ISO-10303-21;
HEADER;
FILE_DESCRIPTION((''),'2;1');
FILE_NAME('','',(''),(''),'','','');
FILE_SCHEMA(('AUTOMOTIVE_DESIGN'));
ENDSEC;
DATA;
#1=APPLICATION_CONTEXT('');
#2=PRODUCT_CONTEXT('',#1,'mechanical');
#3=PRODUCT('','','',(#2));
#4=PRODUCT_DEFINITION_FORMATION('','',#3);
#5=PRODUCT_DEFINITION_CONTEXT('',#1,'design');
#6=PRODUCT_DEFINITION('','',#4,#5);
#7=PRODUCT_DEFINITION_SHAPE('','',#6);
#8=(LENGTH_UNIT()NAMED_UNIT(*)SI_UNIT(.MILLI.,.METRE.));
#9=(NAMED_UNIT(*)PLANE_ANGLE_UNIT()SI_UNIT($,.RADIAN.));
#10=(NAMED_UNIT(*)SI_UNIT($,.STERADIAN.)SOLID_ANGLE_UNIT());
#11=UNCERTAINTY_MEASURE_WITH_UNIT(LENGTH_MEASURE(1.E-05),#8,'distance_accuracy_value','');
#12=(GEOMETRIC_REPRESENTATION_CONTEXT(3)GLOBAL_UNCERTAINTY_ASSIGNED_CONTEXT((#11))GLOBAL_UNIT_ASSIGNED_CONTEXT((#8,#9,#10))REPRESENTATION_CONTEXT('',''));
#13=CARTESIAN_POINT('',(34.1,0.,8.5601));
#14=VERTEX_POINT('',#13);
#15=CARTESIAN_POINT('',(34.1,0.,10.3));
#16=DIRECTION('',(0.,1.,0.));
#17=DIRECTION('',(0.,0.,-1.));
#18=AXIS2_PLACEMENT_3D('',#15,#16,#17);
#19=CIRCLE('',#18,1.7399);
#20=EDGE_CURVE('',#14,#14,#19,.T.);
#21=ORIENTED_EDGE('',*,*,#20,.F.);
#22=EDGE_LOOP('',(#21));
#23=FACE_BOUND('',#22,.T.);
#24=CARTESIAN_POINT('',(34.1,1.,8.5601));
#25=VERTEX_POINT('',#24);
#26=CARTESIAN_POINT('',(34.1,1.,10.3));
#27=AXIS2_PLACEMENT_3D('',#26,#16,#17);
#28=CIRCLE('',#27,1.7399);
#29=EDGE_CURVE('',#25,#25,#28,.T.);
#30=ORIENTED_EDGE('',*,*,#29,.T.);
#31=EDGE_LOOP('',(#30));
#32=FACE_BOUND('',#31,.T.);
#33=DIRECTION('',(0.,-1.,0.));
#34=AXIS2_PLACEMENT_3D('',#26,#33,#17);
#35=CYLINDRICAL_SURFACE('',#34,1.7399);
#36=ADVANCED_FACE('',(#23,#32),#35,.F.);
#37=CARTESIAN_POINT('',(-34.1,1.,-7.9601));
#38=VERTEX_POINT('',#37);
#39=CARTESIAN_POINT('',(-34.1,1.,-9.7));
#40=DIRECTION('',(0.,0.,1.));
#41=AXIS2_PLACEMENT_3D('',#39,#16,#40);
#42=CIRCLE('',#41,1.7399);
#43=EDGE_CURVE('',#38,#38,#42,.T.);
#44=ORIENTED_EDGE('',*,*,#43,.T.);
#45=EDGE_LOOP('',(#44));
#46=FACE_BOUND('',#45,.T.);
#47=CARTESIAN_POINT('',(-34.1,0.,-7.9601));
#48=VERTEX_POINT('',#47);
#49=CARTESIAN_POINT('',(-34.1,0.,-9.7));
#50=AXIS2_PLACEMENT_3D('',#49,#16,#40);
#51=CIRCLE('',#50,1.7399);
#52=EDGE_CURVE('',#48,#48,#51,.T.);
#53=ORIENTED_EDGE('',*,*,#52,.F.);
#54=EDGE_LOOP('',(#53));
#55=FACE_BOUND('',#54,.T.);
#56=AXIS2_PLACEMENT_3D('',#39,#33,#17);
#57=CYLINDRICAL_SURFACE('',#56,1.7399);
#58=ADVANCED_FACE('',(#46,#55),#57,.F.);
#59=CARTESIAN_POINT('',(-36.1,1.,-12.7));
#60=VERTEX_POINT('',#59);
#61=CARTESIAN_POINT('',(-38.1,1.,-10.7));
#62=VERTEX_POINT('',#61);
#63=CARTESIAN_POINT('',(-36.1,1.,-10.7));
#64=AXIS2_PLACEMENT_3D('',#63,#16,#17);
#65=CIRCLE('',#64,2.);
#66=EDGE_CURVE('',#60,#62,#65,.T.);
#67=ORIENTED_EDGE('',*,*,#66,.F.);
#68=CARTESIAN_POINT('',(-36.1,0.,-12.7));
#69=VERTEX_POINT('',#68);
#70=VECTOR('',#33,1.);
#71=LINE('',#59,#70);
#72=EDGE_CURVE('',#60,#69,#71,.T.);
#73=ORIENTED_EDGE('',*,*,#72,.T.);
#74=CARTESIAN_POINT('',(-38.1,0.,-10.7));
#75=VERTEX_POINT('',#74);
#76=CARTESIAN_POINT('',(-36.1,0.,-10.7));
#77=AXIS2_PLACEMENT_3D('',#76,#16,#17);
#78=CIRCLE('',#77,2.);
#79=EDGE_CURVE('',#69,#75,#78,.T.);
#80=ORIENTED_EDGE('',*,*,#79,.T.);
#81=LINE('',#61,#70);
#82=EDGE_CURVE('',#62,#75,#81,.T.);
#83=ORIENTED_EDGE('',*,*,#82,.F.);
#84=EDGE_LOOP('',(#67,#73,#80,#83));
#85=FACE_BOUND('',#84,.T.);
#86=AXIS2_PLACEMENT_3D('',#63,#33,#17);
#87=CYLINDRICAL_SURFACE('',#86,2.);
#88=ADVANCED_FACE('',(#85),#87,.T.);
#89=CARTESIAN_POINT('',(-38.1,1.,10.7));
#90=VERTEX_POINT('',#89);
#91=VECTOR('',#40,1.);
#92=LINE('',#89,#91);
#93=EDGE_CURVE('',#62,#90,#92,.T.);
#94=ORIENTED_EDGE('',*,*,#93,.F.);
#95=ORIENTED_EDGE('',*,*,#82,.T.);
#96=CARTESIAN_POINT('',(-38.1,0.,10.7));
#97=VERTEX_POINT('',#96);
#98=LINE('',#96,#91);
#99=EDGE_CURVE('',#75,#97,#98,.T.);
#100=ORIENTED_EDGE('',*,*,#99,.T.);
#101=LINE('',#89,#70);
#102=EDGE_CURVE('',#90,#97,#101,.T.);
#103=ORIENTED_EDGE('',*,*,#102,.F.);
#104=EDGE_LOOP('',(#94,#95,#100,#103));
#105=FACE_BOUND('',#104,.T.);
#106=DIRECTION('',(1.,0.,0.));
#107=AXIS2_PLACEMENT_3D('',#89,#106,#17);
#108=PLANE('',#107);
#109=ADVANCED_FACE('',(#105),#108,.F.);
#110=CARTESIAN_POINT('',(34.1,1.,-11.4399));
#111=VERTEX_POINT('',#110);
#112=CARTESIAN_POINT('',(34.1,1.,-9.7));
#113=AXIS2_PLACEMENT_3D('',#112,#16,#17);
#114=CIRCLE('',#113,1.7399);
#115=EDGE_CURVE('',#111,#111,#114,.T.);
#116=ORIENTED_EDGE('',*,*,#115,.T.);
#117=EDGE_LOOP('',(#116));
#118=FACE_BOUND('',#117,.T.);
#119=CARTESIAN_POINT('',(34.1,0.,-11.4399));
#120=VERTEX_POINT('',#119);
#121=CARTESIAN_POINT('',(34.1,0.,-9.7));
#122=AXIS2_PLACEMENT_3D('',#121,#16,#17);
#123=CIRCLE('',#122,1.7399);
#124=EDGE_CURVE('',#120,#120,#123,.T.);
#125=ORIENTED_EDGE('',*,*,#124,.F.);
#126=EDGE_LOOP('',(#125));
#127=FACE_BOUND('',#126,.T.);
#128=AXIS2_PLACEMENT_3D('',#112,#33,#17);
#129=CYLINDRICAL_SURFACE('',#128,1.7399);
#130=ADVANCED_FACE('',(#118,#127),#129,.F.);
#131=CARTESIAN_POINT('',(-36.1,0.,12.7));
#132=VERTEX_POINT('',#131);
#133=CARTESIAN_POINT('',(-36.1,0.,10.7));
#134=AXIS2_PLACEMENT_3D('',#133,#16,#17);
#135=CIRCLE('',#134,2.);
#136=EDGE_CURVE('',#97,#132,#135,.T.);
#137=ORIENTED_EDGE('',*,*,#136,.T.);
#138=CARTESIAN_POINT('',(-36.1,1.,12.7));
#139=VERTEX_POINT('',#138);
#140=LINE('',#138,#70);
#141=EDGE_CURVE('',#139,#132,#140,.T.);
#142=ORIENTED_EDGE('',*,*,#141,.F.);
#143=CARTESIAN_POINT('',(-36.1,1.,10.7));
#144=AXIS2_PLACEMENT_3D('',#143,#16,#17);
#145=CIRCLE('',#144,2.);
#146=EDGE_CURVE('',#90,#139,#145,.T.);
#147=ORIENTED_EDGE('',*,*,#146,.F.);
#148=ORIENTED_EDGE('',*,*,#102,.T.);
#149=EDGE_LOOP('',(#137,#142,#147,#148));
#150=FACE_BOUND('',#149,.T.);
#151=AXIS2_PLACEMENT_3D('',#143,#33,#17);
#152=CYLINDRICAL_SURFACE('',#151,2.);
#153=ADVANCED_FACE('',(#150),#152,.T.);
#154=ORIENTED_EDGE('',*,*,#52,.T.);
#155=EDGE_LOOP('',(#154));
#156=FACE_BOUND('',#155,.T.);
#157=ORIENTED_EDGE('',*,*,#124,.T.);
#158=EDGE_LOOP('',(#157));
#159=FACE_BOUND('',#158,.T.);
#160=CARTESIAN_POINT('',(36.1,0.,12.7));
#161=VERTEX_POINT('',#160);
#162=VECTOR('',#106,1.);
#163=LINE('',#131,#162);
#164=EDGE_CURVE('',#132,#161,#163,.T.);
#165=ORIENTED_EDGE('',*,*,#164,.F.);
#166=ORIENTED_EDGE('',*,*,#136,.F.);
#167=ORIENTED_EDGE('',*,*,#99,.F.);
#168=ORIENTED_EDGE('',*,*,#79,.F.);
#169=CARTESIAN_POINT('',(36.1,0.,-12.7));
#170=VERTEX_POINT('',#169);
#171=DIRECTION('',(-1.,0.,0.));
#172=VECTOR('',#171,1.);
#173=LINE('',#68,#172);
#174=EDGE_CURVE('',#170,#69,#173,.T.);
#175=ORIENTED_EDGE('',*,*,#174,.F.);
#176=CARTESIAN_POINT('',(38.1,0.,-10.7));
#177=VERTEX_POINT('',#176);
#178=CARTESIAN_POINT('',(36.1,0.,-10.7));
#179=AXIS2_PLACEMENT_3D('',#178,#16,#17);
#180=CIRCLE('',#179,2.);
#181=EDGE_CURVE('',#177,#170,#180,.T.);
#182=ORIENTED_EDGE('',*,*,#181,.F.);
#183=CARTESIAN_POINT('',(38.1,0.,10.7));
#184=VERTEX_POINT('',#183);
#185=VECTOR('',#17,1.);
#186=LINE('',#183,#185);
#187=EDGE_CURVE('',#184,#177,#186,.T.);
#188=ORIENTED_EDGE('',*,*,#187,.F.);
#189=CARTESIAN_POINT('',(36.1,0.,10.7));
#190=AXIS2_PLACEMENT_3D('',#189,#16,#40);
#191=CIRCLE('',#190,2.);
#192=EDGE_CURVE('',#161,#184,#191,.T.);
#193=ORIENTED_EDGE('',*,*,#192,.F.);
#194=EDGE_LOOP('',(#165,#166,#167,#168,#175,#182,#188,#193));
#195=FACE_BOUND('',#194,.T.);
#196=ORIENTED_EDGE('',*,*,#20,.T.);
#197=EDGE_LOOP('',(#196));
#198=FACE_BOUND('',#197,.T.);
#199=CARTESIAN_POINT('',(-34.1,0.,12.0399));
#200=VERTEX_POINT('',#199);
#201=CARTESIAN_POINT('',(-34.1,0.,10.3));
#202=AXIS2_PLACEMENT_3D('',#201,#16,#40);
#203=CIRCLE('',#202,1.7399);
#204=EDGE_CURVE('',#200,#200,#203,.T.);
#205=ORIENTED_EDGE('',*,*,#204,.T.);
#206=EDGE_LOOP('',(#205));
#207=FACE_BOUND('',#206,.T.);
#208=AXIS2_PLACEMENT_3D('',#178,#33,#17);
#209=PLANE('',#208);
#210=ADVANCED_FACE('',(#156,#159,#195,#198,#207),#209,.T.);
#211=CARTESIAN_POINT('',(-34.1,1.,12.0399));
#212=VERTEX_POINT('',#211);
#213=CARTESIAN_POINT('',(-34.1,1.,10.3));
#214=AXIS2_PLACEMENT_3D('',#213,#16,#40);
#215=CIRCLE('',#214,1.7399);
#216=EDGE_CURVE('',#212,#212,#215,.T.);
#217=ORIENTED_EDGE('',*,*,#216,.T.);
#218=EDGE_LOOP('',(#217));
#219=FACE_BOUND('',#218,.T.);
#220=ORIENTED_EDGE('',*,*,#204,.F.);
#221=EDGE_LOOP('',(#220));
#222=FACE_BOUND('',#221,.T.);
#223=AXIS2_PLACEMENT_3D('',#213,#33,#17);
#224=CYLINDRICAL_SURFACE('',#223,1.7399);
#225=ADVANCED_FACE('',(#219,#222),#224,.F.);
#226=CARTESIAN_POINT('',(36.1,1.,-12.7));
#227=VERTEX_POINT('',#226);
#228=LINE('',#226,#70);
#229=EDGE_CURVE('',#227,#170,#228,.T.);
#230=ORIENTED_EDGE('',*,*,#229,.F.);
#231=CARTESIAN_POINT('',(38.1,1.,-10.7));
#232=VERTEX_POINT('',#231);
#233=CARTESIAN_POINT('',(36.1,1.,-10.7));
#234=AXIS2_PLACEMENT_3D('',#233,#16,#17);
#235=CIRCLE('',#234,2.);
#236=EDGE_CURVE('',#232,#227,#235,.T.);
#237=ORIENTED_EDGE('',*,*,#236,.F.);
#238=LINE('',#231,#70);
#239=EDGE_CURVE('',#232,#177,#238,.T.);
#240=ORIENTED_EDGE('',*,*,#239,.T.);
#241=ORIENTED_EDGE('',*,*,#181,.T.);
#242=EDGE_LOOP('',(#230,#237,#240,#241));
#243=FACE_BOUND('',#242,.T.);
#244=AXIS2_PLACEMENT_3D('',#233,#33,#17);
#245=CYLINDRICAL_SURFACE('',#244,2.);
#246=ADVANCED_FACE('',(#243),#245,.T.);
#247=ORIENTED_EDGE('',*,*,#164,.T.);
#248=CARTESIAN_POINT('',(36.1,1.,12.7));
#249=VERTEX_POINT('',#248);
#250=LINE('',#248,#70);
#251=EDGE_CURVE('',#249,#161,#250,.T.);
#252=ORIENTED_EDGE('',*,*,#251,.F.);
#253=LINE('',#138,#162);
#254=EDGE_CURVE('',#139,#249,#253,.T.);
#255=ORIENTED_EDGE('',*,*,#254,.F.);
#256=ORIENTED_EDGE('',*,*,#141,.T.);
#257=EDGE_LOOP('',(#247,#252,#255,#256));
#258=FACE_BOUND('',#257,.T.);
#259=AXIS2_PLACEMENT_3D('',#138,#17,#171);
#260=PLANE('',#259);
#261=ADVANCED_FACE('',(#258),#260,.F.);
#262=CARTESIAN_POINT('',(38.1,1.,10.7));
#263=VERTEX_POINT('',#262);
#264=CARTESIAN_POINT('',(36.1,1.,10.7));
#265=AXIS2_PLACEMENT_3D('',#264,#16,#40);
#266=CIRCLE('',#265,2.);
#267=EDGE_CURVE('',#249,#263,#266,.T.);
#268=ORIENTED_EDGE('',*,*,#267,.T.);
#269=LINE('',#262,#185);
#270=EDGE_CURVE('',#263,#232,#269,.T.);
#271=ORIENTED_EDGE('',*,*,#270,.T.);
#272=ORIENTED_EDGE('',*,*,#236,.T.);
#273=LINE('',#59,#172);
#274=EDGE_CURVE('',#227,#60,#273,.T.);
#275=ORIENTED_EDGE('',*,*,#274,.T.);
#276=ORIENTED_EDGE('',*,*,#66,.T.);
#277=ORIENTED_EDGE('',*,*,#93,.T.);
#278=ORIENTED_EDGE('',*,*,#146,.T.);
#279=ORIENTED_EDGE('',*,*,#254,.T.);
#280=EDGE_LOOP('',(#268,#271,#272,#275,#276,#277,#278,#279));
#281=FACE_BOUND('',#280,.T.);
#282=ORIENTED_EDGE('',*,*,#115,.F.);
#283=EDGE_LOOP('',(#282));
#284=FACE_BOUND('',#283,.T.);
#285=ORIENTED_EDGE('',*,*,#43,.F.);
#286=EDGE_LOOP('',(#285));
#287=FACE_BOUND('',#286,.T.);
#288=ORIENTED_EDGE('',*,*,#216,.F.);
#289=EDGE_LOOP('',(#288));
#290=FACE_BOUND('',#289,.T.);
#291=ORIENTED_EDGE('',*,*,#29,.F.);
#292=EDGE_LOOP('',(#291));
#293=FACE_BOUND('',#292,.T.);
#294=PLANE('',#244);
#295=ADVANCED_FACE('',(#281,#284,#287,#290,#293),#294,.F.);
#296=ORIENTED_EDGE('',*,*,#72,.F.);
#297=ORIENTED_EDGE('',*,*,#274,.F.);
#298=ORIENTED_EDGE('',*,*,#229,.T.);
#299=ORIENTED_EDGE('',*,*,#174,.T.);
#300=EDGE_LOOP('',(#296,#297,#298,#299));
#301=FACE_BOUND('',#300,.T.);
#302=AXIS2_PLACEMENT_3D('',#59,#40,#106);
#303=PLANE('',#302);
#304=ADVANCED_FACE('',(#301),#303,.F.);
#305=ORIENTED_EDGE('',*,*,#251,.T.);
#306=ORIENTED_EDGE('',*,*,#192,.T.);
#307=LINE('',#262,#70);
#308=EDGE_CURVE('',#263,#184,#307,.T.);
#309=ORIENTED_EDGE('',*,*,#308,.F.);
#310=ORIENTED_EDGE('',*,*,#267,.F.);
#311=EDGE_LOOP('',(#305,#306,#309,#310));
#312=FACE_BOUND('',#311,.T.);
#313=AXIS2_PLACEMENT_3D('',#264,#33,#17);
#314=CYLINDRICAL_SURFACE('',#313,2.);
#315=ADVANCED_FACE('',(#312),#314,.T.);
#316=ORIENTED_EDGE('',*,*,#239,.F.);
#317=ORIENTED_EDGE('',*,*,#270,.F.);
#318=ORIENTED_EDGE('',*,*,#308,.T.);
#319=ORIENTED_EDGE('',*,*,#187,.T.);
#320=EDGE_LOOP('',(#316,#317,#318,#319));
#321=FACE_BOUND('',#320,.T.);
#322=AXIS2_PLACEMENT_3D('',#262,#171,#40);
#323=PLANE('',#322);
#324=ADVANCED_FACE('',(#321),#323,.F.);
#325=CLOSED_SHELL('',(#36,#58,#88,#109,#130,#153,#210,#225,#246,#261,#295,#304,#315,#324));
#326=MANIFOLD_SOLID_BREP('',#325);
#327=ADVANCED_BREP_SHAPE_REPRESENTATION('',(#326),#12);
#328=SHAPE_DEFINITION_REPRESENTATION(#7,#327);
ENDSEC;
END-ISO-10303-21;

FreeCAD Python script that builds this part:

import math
import FreeCAD as App
import Part
import Sketcher

doc = App.newDocument("Part")
body = doc.addObject("PartDesign::Body", "Body")

# Sketch on XZ plane
sketch1 = doc.addObject("Sketcher::SketchObject", "Sketch")
body.addObject(sketch1)
sketch1.AttachmentSupport = (doc.XZ_Plane, [""])
sketch1.MapMode = "FlatFace"
sketch1.addGeometry([
    Part.LineSegment(App.Vector(-36.1, 12.7, 0), App.Vector(36.1, 12.7, 0)),  # 0
    Part.ArcOfCircle(Part.Circle(App.Vector(36.1, 10.7, 0), App.Vector(0, 0, 1), 2), math.radians(0), math.radians(90)),  # 1
    Part.LineSegment(App.Vector(38.1, 10.7, 0), App.Vector(38.1, -10.7, 0)),  # 2
    Part.ArcOfCircle(Part.Circle(App.Vector(36.1, -10.7, 0), App.Vector(0, 0, 1), 2), math.radians(-90), math.radians(0)),  # 3
    Part.LineSegment(App.Vector(36.1, -12.7, 0), App.Vector(-36.1, -12.7, 0)),  # 4
    Part.ArcOfCircle(Part.Circle(App.Vector(-36.1, -10.7, 0), App.Vector(0, 0, 1), 2), math.radians(-180), math.radians(-90)),  # 5
    Part.LineSegment(App.Vector(-38.1, -10.7, 0), App.Vector(-38.1, 10.7, 0)),  # 6
    Part.ArcOfCircle(Part.Circle(App.Vector(-36.1, 10.7, 0), App.Vector(0, 0, 1), 2), math.radians(90), math.radians(180)),  # 7
    Part.Circle(App.Vector(-34.1, 10.3, 0), App.Vector(0, 0, 1), 1.7),  # 8
    Part.Circle(App.Vector(34.1, 10.3, 0), App.Vector(0, 0, 1), 1.7),  # 9
    Part.Circle(App.Vector(-34.1, -9.7, 0), App.Vector(0, 0, 1), 1.7),  # 10
    Part.Circle(App.Vector(34.1, -9.7, 0), App.Vector(0, 0, 1), 1.7),  # 11
], False)
sketch1.addConstraint([
    Sketcher.Constraint("Tangent", 0, 2, 1, 2),
    Sketcher.Constraint("Tangent", 1, 1, 2, 1),
    Sketcher.Constraint("Tangent", 2, 2, 3, 2),
    Sketcher.Constraint("Tangent", 3, 1, 4, 1),
    Sketcher.Constraint("Tangent", 4, 2, 5, 2),
    Sketcher.Constraint("Tangent", 5, 1, 6, 1),
    Sketcher.Constraint("Tangent", 6, 2, 7, 2),
    Sketcher.Constraint("Tangent", 7, 1, 0, 1),
    Sketcher.Constraint("Horizontal", 0),
    Sketcher.Constraint("Vertical", 2),
    Sketcher.Constraint("Horizontal", 4),
    Sketcher.Constraint("Vertical", 6),
    Sketcher.Constraint("Equal", 1, 3),
    Sketcher.Constraint("Equal", 3, 5),
    Sketcher.Constraint("Equal", 5, 7),
    Sketcher.Constraint("Equal", 8, 9),
    Sketcher.Constraint("Equal", 9, 10),
    Sketcher.Constraint("Equal", 10, 11),
    Sketcher.Constraint("Symmetric", 1, 3, 5, 3, -1, 1),
    Sketcher.Constraint("Symmetric", 8, 3, 9, 3, -2),
    Sketcher.Constraint("Symmetric", 10, 3, 11, 3, -2),
    Sketcher.Constraint("Vertical", 8, 3, 10, 3),
    Sketcher.Constraint("Radius", 1, 2.0),
    Sketcher.Constraint("DistanceX", 0, 1, 0, 2, 72.2),
    Sketcher.Constraint("DistanceY", 2, 2, 2, 1, 21.4),
    Sketcher.Constraint("DistanceX", 7, 3, 8, 3, 2.0),
    Sketcher.Constraint("DistanceY", 5, 3, 8, 3, 21.0),
    Sketcher.Constraint("DistanceY", 5, 3, 10, 3, 1.0),
    Sketcher.Constraint("Diameter", 8, 3.4798),
])
pad1 = doc.addObject("PartDesign::Pad", "Pad")
body.addObject(pad1)
pad1.Profile = sketch1
pad1.Length = 1
pad1.Reversed = True

doc.recompute()
